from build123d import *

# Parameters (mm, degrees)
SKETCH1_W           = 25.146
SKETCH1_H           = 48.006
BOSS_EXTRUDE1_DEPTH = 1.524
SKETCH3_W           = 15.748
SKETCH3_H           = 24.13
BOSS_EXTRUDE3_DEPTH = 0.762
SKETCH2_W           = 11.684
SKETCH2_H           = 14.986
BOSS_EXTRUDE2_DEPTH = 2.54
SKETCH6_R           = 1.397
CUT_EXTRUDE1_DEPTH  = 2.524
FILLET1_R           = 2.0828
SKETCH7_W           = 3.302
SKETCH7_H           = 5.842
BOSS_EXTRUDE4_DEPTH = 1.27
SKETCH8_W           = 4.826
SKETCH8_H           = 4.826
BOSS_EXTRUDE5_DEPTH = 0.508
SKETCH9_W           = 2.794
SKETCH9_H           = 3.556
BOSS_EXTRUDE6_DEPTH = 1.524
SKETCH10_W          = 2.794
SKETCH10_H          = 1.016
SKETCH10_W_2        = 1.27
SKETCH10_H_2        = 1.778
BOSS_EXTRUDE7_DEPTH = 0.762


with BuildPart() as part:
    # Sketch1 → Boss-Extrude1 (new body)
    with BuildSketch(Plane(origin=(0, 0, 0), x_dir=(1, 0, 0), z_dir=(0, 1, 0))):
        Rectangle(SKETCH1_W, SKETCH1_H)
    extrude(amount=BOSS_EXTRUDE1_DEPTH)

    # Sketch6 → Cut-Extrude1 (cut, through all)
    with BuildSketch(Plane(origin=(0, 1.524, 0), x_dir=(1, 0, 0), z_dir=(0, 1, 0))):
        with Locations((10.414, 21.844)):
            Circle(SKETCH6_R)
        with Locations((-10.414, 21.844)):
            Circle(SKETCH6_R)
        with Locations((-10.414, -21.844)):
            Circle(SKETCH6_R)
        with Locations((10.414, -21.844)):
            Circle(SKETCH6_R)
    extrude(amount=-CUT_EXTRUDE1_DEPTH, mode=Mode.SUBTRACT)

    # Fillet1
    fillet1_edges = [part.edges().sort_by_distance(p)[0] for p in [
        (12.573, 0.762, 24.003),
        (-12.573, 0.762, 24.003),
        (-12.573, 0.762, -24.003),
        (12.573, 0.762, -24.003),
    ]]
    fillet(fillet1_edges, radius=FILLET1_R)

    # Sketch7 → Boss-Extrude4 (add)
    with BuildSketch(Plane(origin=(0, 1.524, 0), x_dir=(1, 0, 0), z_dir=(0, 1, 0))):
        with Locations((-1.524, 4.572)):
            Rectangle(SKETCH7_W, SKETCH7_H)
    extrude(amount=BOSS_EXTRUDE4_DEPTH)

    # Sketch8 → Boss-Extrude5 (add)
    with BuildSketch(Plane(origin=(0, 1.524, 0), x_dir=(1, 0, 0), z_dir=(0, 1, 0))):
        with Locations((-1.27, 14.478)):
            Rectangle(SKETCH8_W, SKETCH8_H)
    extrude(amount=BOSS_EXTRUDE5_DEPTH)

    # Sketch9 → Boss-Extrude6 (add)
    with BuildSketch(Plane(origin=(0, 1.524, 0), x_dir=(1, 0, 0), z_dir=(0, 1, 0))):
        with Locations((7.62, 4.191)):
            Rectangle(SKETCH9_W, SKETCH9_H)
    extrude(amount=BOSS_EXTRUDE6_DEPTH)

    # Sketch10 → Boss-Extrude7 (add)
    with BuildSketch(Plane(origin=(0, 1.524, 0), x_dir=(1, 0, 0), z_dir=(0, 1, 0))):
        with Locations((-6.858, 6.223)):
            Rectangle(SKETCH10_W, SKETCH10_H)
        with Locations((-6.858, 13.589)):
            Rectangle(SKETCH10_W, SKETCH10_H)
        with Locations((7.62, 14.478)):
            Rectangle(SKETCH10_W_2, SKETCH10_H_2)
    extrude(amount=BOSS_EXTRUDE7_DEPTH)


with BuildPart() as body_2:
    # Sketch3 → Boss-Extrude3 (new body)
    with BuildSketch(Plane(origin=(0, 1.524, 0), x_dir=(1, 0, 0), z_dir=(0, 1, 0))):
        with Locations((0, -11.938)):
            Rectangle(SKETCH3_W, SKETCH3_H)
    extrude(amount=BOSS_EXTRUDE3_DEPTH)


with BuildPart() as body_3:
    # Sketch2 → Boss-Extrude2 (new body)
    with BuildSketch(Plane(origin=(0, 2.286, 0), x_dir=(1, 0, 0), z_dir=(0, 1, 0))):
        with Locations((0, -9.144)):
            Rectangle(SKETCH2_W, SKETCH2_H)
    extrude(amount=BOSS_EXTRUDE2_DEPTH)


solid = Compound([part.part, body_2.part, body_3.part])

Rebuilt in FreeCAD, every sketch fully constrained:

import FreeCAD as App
import Part
import Sketcher
Q = App.Units.Quantity


def edges_at(feature, points):
    """Names of the edges that pass closest to the given points."""
    edges = feature.Shape.Edges
    near = lambda p: min(range(len(edges)), key=lambda i: edges[i].distToShape(Part.Vertex(*p))[0])
    return sorted({f"Edge{near(p) + 1}" for p in points})

doc = App.newDocument("Part")
body = doc.addObject("PartDesign::Body", "Body")

sketch1 = body.newObject("Sketcher::SketchObject", "Sketch")
sketch1.AttachmentSupport = (doc.getObject("XZ_Plane"), [""])
sketch1.MapMode = "FlatFace"
sketch1.addGeometry(Part.LineSegment(App.Vector(-12.573, -24.003, 0), App.Vector(-12.573, 24.003, 0)), False)
sketch1.addGeometry(Part.LineSegment(App.Vector(-12.573, 24.003, 0), App.Vector(12.573, 24.003, 0)), False)
sketch1.addGeometry(Part.LineSegment(App.Vector(12.573, 24.003, 0), App.Vector(12.573, -24.003, 0)), False)
sketch1.addGeometry(Part.LineSegment(App.Vector(12.573, -24.003, 0), App.Vector(-12.573, -24.003, 0)), False)
sketch1.addConstraint(Sketcher.Constraint("Coincident", 0, 2, 1, 1))
sketch1.addConstraint(Sketcher.Constraint("Coincident", 1, 2, 2, 1))
sketch1.addConstraint(Sketcher.Constraint("Coincident", 2, 2, 3, 1))
sketch1.addConstraint(Sketcher.Constraint("Coincident", 3, 2, 0, 1))
sketch1.addConstraint(Sketcher.Constraint("Vertical", 0))
sketch1.addConstraint(Sketcher.Constraint("Horizontal", 1))
sketch1.addConstraint(Sketcher.Constraint("Vertical", 2))
sketch1.addConstraint(Sketcher.Constraint("Horizontal", 3))
sketch1.addConstraint(Sketcher.Constraint("Symmetric", 0, 2, 2, 2, -1, 1))
sketch1.addConstraint(Sketcher.Constraint("DistanceX", 1, 1, 1, 2, Q("0.99 in")))
sketch1.addConstraint(Sketcher.Constraint("DistanceY", 0, 1, 0, 2, Q("1.89 in")))
pad1 = body.newObject("PartDesign::Pad", "Pad")
pad1.Profile = sketch1
pad1.Length = Q("0.06 in")
pad1.Reversed = True

sketch2 = body.newObject("Sketcher::SketchObject", "Sketch001")
sketch2.AttachmentSupport = (doc.getObject("XZ_Plane"), [""])
sketch2.MapMode = "FlatFace"
sketch2.AttachmentOffset = App.Placement(App.Vector(0, 0, -0.06 * 25.4), App.Rotation())
sketch2.addGeometry(Part.Circle(App.Vector(10.414, -21.844, 0), App.Vector(0, 0, 1), 1.397), False)
sketch2.addGeometry(Part.Circle(App.Vector(-10.414, -21.844, 0), App.Vector(0, 0, 1), 1.397), False)
sketch2.addGeometry(Part.Circle(App.Vector(-10.414, 21.844, 0), App.Vector(0, 0, 1), 1.397), False)
sketch2.addGeometry(Part.Circle(App.Vector(10.414, 21.844, 0), App.Vector(0, 0, 1), 1.397), False)
sketch2.addConstraint(Sketcher.Constraint("Equal", 0, 1))
sketch2.addConstraint(Sketcher.Constraint("Equal", 1, 2))
sketch2.addConstraint(Sketcher.Constraint("Equal", 2, 3))
sketch2.addConstraint(Sketcher.Constraint("Symmetric", 0, 3, 2, 3, -1, 1))
sketch2.addConstraint(Sketcher.Constraint("Symmetric", 1, 3, 3, 3, -1, 1))
sketch2.addConstraint(Sketcher.Constraint("Symmetric", 0, 3, 1, 3, -2))
sketch2.addConstraint(Sketcher.Constraint("Diameter", 0, Q("0.11 in")))
sketch2.addConstraint(Sketcher.Constraint("DistanceX", -1, 1, 0, 3, Q("0.41 in")))
sketch2.addConstraint(Sketcher.Constraint("DistanceY", 0, 3, -1, 1, Q("0.86 in")))
pocket1 = body.newObject("PartDesign::Pocket", "Pocket")
pocket1.Profile = sketch2
pocket1.Type = "ThroughAll"
pocket1.Reversed = True
doc.recompute()

fillet = body.newObject("PartDesign::Fillet", "Fillet")
fillet.Base = (pocket1, edges_at(pocket1, [
    (12.573, 0.762, 24.003),
    (-12.573, 0.762, 24.003),
    (-12.573, 0.762, -24.003),
    (12.573, 0.762, -24.003),
]))
fillet.Radius = Q("0.082 in")

sketch3 = body.newObject("Sketcher::SketchObject", "Sketch002")
sketch3.AttachmentSupport = (doc.getObject("XZ_Plane"), [""])
sketch3.MapMode = "FlatFace"
sketch3.AttachmentOffset = App.Placement(App.Vector(0, 0, -0.06 * 25.4), App.Rotation())
sketch3.addGeometry(Part.LineSegment(App.Vector(-3.175, -7.493, 0), App.Vector(-3.175, -1.651, 0)), False)
sketch3.addGeometry(Part.LineSegment(App.Vector(-3.175, -1.651, 0), App.Vector(0.127, -1.651, 0)), False)
sketch3.addGeometry(Part.LineSegment(App.Vector(0.127, -1.651, 0), App.Vector(0.127, -7.493, 0)), False)
sketch3.addGeometry(Part.LineSegment(App.Vector(0.127, -7.493, 0), App.Vector(-3.175, -7.493, 0)), False)
sketch3.addConstraint(Sketcher.Constraint("Coincident", 0, 2, 1, 1))
sketch3.addConstraint(Sketcher.Constraint("Coincident", 1, 2, 2, 1))
sketch3.addConstraint(Sketcher.Constraint("Coincident", 2, 2, 3, 1))
sketch3.addConstraint(Sketcher.Constraint("Coincident", 3, 2, 0, 1))
sketch3.addConstraint(Sketcher.Constraint("Vertical", 0))
sketch3.addConstraint(Sketcher.Constraint("Horizontal", 1))
sketch3.addConstraint(Sketcher.Constraint("Vertical", 2))
sketch3.addConstraint(Sketcher.Constraint("Horizontal", 3))
sketch3.addConstraint(Sketcher.Constraint("DistanceX", 1, 1, 1, 2, Q("0.13 in")))
sketch3.addConstraint(Sketcher.Constraint("DistanceY", 0, 1, 0, 2, Q("0.23 in")))
sketch3.addConstraint(Sketcher.Constraint("DistanceX", 0, 2, -1, 1, Q("0.125 in")))
sketch3.addConstraint(Sketcher.Constraint("DistanceY", 0, 2, -1, 1, Q("0.065 in")))
pad2 = body.newObject("PartDesign::Pad", "Pad001")
pad2.Profile = sketch3
pad2.Length = Q("0.05 in")
pad2.Reversed = True

sketch4 = body.newObject("Sketcher::SketchObject", "Sketch003")
sketch4.AttachmentSupport = (doc.getObject("XZ_Plane"), [""])
sketch4.MapMode = "FlatFace"
sketch4.AttachmentOffset = App.Placement(App.Vector(0, 0, -0.06 * 25.4), App.Rotation())
sketch4.addGeometry(Part.LineSegment(App.Vector(-3.683, -16.891, 0), App.Vector(-3.683, -12.065, 0)), False)
sketch4.addGeometry(Part.LineSegment(App.Vector(-3.683, -12.065, 0), App.Vector(1.143, -12.065, 0)), False)
sketch4.addGeometry(Part.LineSegment(App.Vector(1.143, -12.065, 0), App.Vector(1.143, -16.891, 0)), False)
sketch4.addGeometry(Part.LineSegment(App.Vector(1.143, -16.891, 0), App.Vector(-3.683, -16.891, 0)), False)
sketch4.addConstraint(Sketcher.Constraint("Coincident", 0, 2, 1, 1))
sketch4.addConstraint(Sketcher.Constraint("Coincident", 1, 2, 2, 1))
sketch4.addConstraint(Sketcher.Constraint("Coincident", 2, 2, 3, 1))
sketch4.addConstraint(Sketcher.Constraint("Coincident", 3, 2, 0, 1))
sketch4.addConstraint(Sketcher.Constraint("Vertical", 0))
sketch4.addConstraint(Sketcher.Constraint("Horizontal", 1))
sketch4.addConstraint(Sketcher.Constraint("Vertical", 2))
sketch4.addConstraint(Sketcher.Constraint("Horizontal", 3))
sketch4.addConstraint(Sketcher.Constraint("Equal", 3, 0))
sketch4.addConstraint(Sketcher.Constraint("DistanceX", 1, 1, 1, 2, Q("0.19 in")))
sketch4.addConstraint(Sketcher.Constraint("DistanceX", 0, 2, -1, 1, Q("0.145 in")))
sketch4.addConstraint(Sketcher.Constraint("DistanceY", 0, 2, -1, 1, Q("0.475 in")))
pad3 = body.newObject("PartDesign::Pad", "Pad002")
pad3.Profile = sketch4
pad3.Length = Q("0.02 in")
pad3.Reversed = True

sketch5 = body.newObject("Sketcher::SketchObject", "Sketch004")
sketch5.AttachmentSupport = (doc.getObject("XZ_Plane"), [""])
sketch5.MapMode = "FlatFace"
sketch5.AttachmentOffset = App.Placement(App.Vector(0, 0, -0.06 * 25.4), App.Rotation())
sketch5.addGeometry(Part.LineSegment(App.Vector(6.223, -5.969, 0), App.Vector(6.223, -2.413, 0)), False)
sketch5.addGeometry(Part.LineSegment(App.Vector(6.223, -2.413, 0), App.Vector(9.017, -2.413, 0)), False)
sketch5.addGeometry(Part.LineSegment(App.Vector(9.017, -2.413, 0), App.Vector(9.017, -5.969, 0)), False)
sketch5.addGeometry(Part.LineSegment(App.Vector(9.017, -5.969, 0), App.Vector(6.223, -5.969, 0)), False)
sketch5.addConstraint(Sketcher.Constraint("Coincident", 0, 2, 1, 1))
sketch5.addConstraint(Sketcher.Constraint("Coincident", 1, 2, 2, 1))
sketch5.addConstraint(Sketcher.Constraint("Coincident", 2, 2, 3, 1))
sketch5.addConstraint(Sketcher.Constraint("Coincident", 3, 2, 0, 1))
sketch5.addConstraint(Sketcher.Constraint("Vertical", 0))
sketch5.addConstraint(Sketcher.Constraint("Horizontal", 1))
sketch5.addConstraint(Sketcher.Constraint("Vertical", 2))
sketch5.addConstraint(Sketcher.Constraint("Horizontal", 3))
sketch5.addConstraint(Sketcher.Constraint("DistanceX", 1, 1, 1, 2, Q("0.11 in")))
sketch5.addConstraint(Sketcher.Constraint("DistanceY", 0, 1, 0, 2, Q("0.14 in")))
sketch5.addConstraint(Sketcher.Constraint("DistanceX", -1, 1, 0, 2, Q("0.245 in")))
sketch5.addConstraint(Sketcher.Constraint("DistanceY", 0, 2, -1, 1, Q("0.095 in")))
pad4 = body.newObject("PartDesign::Pad", "Pad003")
pad4.Profile = sketch5
pad4.Length = Q("0.06 in")
pad4.Reversed = True

sketch6 = body.newObject("Sketcher::SketchObject", "Sketch005")
sketch6.AttachmentSupport = (doc.getObject("XZ_Plane"), [""])
sketch6.MapMode = "FlatFace"
sketch6.AttachmentOffset = App.Placement(App.Vector(0, 0, -0.06 * 25.4), App.Rotation())
sketch6.addGeometry(Part.LineSegment(App.Vector(-8.255, -6.731, 0), App.Vector(-8.255, -5.715, 0)), False)
sketch6.addGeometry(Part.LineSegment(App.Vector(-8.255, -5.715, 0), App.Vector(-5.461, -5.715, 0)), False)
sketch6.addGeometry(Part.LineSegment(App.Vector(-5.461, -5.715, 0), App.Vector(-5.461, -6.731, 0)), False)
sketch6.addGeometry(Part.LineSegment(App.Vector(-5.461, -6.731, 0), App.Vector(-8.255, -6.731, 0)), False)
sketch6.addGeometry(Part.LineSegment(App.Vector(-8.255, -14.097, 0), App.Vector(-8.255, -13.081, 0)), False)
sketch6.addGeometry(Part.LineSegment(App.Vector(-8.255, -13.081, 0), App.Vector(-5.461, -13.081, 0)), False)
sketch6.addGeometry(Part.LineSegment(App.Vector(-5.461, -13.081, 0), App.Vector(-5.461, -14.097, 0)), False)
sketch6.addGeometry(Part.LineSegment(App.Vector(-5.461, -14.097, 0), App.Vector(-8.255, -14.097, 0)), False)
sketch6.addGeometry(Part.LineSegment(App.Vector(6.985, -15.367, 0), App.Vector(6.985, -13.589, 0)), False)
sketch6.addGeometry(Part.LineSegment(App.Vector(6.985, -13.589, 0), App.Vector(8.255, -13.589, 0)), False)
sketch6.addGeometry(Part.LineSegment(App.Vector(8.255, -13.589, 0), App.Vector(8.255, -15.367, 0)), False)
sketch6.addGeometry(Part.LineSegment(App.Vector(8.255, -15.367, 0), App.Vector(6.985, -15.367, 0)), False)
sketch6.addConstraint(Sketcher.Constraint("Coincident", 0, 2, 1, 1))
sketch6.addConstraint(Sketcher.Constraint("Coincident", 1, 2, 2, 1))
sketch6.addConstraint(Sketcher.Constraint("Coincident", 2, 2, 3, 1))
sketch6.addConstraint(Sketcher.Constraint("Coincident", 3, 2, 0, 1))
sketch6.addConstraint(Sketcher.Constraint("Coincident", 4, 2, 5, 1))
sketch6.addConstraint(Sketcher.Constraint("Coincident", 5, 2, 6, 1))
sketch6.addConstraint(Sketcher.Constraint("Coincident", 6, 2, 7, 1))
sketch6.addConstraint(Sketcher.Constraint("Coincident", 7, 2, 4, 1))
sketch6.addConstraint(Sketcher.Constraint("Coincident", 8, 2, 9, 1))
sketch6.addConstraint(Sketcher.Constraint("Coincident", 9, 2, 10, 1))
sketch6.addConstraint(Sketcher.Constraint("Coincident", 10, 2, 11, 1))
sketch6.addConstraint(Sketcher.Constraint("Coincident", 11, 2, 8, 1))
sketch6.addConstraint(Sketcher.Constraint("Vertical", 0))
sketch6.addConstraint(Sketcher.Constraint("Horizontal", 1))
sketch6.addConstraint(Sketcher.Constraint("Vertical", 2))
sketch6.addConstraint(Sketcher.Constraint("Horizontal", 3))
sketch6.addConstraint(Sketcher.Constraint("Vertical", 4))
sketch6.addConstraint(Sketcher.Constraint("Horizontal", 5))
sketch6.addConstraint(Sketcher.Constraint("Vertical", 6))
sketch6.addConstraint(Sketcher.Constraint("Horizontal", 7))
sketch6.addConstraint(Sketcher.Constraint("Vertical", 8))
sketch6.addConstraint(Sketcher.Constraint("Horizontal", 9))
sketch6.addConstraint(Sketcher.Constraint("Vertical", 10))
sketch6.addConstraint(Sketcher.Constraint("Horizontal", 11))
sketch6.addConstraint(Sketcher.Constraint("Vertical", 3, 2, 4, 2))
sketch6.addConstraint(Sketcher.Constraint("Vertical", 2, 2, 5, 2))
sketch6.addConstraint(Sketcher.Constraint("Equal", 2, 4))
sketch6.addConstraint(Sketcher.Constraint("DistanceX", 1, 1, 1, 2, Q("0.11 in")))
sketch6.addConstraint(Sketcher.Constraint("DistanceX", 9, 1, 9, 2, Q("0.05 in")))
sketch6.addConstraint(Sketcher.Constraint("DistanceY", 0, 1, 0, 2, Q("0.04 in")))
sketch6.addConstraint(Sketcher.Constraint("DistanceY", 8, 1, 8, 2, Q("0.07 in")))
sketch6.addConstraint(Sketcher.Constraint("DistanceX", 4, 2, 8, 2, Q("0.6 in")))
sketch6.addConstraint(Sketcher.Constraint("DistanceY", 4, 2, 3, 2, Q("0.25 in")))
sketch6.addConstraint(Sketcher.Constraint("DistanceY", 8, 2, 5, 2, Q("0.02 in")))
sketch6.addConstraint(Sketcher.Constraint("DistanceX", 0, 2, -1, 1, Q("0.325 in")))
sketch6.addConstraint(Sketcher.Constraint("DistanceY", 0, 2, -1, 1, Q("0.225 in")))
pad5 = body.newObject("PartDesign::Pad", "Pad004")
pad5.Profile = sketch6
pad5.Length = Q("0.03 in")
pad5.Reversed = True
body2 = doc.addObject("PartDesign::Body", "Body001")

sketch7 = body2.newObject("Sketcher::SketchObject", "Sketch006")
sketch7.AttachmentSupport = (doc.getObject("XZ_Plane001"), [""])
sketch7.MapMode = "FlatFace"
sketch7.AttachmentOffset = App.Placement(App.Vector(0, 0, -0.06 * 25.4), App.Rotation())
sketch7.addGeometry(Part.LineSegment(App.Vector(-7.874, -0.127, 0), App.Vector(-7.874, 24.003, 0)), False)
sketch7.addGeometry(Part.LineSegment(App.Vector(-7.874, 24.003, 0), App.Vector(7.874, 24.003, 0)), False)
sketch7.addGeometry(Part.LineSegment(App.Vector(7.874, 24.003, 0), App.Vector(7.874, -0.127, 0)), False)
sketch7.addGeometry(Part.LineSegment(App.Vector(7.874, -0.127, 0), App.Vector(-7.874, -0.127, 0)), False)
sketch7.addConstraint(Sketcher.Constraint("Coincident", 0, 2, 1, 1))
sketch7.addConstraint(Sketcher.Constraint("Coincident", 1, 2, 2, 1))
sketch7.addConstraint(Sketcher.Constraint("Coincident", 2, 2, 3, 1))
sketch7.addConstraint(Sketcher.Constraint("Coincident", 3, 2, 0, 1))
sketch7.addConstraint(Sketcher.Constraint("Vertical", 0))
sketch7.addConstraint(Sketcher.Constraint("Horizontal", 1))
sketch7.addConstraint(Sketcher.Constraint("Vertical", 2))
sketch7.addConstraint(Sketcher.Constraint("Horizontal", 3))
sketch7.addConstraint(Sketcher.Constraint("DistanceX", 1, 1, 1, 2, Q("0.62 in")))
sketch7.addConstraint(Sketcher.Constraint("DistanceY", 0, 1, 0, 2, Q("0.95 in")))
sketch7.addConstraint(Sketcher.Constraint("DistanceX", 0, 2, -1, 1, Q("0.31 in")))
sketch7.addConstraint(Sketcher.Constraint("DistanceY", -1, 1, 0, 2, Q("0.945 in")))
pad6 = body2.newObject("PartDesign::Pad", "Pad005")
pad6.Profile = sketch7
pad6.Length = Q("0.03 in")
pad6.Reversed = True
body3 = doc.addObject("PartDesign::Body", "Body002")

sketch8 = body3.newObject("Sketcher::SketchObject", "Sketch007")
sketch8.AttachmentSupport = (doc.getObject("XZ_Plane002"), [""])
sketch8.MapMode = "FlatFace"
sketch8.AttachmentOffset = App.Placement(App.Vector(0, 0, -0.09 * 25.4), App.Rotation())
sketch8.addGeometry(Part.LineSegment(App.Vector(-5.842, 1.651, 0), App.Vector(-5.842, 16.637, 0)), False)
sketch8.addGeometry(Part.LineSegment(App.Vector(-5.842, 16.637, 0), App.Vector(5.842, 16.637, 0)), False)
sketch8.addGeometry(Part.LineSegment(App.Vector(5.842, 16.637, 0), App.Vector(5.842, 1.651, 0)), False)
sketch8.addGeometry(Part.LineSegment(App.Vector(5.842, 1.651, 0), App.Vector(-5.842, 1.651, 0)), False)
sketch8.addConstraint(Sketcher.Constraint("Coincident", 0, 2, 1, 1))
sketch8.addConstraint(Sketcher.Constraint("Coincident", 1, 2, 2, 1))
sketch8.addConstraint(Sketcher.Constraint("Coincident", 2, 2, 3, 1))
sketch8.addConstraint(Sketcher.Constraint("Coincident", 3, 2, 0, 1))
sketch8.addConstraint(Sketcher.Constraint("Vertical", 0))
sketch8.addConstraint(Sketcher.Constraint("Horizontal", 1))
sketch8.addConstraint(Sketcher.Constraint("Vertical", 2))
sketch8.addConstraint(Sketcher.Constraint("Horizontal", 3))
sketch8.addConstraint(Sketcher.Constraint("DistanceX", 1, 1, 1, 2, Q("0.46 in")))
sketch8.addConstraint(Sketcher.Constraint("DistanceY", 0, 1, 0, 2, Q("0.59 in")))
sketch8.addConstraint(Sketcher.Constraint("DistanceX", 0, 2, -1, 1, Q("0.23 in")))
sketch8.addConstraint(Sketcher.Constraint("DistanceY", -1, 1, 0, 2, Q("0.655 in")))
pad7 = body3.newObject("PartDesign::Pad", "Pad006")
pad7.Profile = sketch8
pad7.Length = Q("0.1 in")
pad7.Reversed = True

doc.recompute()
